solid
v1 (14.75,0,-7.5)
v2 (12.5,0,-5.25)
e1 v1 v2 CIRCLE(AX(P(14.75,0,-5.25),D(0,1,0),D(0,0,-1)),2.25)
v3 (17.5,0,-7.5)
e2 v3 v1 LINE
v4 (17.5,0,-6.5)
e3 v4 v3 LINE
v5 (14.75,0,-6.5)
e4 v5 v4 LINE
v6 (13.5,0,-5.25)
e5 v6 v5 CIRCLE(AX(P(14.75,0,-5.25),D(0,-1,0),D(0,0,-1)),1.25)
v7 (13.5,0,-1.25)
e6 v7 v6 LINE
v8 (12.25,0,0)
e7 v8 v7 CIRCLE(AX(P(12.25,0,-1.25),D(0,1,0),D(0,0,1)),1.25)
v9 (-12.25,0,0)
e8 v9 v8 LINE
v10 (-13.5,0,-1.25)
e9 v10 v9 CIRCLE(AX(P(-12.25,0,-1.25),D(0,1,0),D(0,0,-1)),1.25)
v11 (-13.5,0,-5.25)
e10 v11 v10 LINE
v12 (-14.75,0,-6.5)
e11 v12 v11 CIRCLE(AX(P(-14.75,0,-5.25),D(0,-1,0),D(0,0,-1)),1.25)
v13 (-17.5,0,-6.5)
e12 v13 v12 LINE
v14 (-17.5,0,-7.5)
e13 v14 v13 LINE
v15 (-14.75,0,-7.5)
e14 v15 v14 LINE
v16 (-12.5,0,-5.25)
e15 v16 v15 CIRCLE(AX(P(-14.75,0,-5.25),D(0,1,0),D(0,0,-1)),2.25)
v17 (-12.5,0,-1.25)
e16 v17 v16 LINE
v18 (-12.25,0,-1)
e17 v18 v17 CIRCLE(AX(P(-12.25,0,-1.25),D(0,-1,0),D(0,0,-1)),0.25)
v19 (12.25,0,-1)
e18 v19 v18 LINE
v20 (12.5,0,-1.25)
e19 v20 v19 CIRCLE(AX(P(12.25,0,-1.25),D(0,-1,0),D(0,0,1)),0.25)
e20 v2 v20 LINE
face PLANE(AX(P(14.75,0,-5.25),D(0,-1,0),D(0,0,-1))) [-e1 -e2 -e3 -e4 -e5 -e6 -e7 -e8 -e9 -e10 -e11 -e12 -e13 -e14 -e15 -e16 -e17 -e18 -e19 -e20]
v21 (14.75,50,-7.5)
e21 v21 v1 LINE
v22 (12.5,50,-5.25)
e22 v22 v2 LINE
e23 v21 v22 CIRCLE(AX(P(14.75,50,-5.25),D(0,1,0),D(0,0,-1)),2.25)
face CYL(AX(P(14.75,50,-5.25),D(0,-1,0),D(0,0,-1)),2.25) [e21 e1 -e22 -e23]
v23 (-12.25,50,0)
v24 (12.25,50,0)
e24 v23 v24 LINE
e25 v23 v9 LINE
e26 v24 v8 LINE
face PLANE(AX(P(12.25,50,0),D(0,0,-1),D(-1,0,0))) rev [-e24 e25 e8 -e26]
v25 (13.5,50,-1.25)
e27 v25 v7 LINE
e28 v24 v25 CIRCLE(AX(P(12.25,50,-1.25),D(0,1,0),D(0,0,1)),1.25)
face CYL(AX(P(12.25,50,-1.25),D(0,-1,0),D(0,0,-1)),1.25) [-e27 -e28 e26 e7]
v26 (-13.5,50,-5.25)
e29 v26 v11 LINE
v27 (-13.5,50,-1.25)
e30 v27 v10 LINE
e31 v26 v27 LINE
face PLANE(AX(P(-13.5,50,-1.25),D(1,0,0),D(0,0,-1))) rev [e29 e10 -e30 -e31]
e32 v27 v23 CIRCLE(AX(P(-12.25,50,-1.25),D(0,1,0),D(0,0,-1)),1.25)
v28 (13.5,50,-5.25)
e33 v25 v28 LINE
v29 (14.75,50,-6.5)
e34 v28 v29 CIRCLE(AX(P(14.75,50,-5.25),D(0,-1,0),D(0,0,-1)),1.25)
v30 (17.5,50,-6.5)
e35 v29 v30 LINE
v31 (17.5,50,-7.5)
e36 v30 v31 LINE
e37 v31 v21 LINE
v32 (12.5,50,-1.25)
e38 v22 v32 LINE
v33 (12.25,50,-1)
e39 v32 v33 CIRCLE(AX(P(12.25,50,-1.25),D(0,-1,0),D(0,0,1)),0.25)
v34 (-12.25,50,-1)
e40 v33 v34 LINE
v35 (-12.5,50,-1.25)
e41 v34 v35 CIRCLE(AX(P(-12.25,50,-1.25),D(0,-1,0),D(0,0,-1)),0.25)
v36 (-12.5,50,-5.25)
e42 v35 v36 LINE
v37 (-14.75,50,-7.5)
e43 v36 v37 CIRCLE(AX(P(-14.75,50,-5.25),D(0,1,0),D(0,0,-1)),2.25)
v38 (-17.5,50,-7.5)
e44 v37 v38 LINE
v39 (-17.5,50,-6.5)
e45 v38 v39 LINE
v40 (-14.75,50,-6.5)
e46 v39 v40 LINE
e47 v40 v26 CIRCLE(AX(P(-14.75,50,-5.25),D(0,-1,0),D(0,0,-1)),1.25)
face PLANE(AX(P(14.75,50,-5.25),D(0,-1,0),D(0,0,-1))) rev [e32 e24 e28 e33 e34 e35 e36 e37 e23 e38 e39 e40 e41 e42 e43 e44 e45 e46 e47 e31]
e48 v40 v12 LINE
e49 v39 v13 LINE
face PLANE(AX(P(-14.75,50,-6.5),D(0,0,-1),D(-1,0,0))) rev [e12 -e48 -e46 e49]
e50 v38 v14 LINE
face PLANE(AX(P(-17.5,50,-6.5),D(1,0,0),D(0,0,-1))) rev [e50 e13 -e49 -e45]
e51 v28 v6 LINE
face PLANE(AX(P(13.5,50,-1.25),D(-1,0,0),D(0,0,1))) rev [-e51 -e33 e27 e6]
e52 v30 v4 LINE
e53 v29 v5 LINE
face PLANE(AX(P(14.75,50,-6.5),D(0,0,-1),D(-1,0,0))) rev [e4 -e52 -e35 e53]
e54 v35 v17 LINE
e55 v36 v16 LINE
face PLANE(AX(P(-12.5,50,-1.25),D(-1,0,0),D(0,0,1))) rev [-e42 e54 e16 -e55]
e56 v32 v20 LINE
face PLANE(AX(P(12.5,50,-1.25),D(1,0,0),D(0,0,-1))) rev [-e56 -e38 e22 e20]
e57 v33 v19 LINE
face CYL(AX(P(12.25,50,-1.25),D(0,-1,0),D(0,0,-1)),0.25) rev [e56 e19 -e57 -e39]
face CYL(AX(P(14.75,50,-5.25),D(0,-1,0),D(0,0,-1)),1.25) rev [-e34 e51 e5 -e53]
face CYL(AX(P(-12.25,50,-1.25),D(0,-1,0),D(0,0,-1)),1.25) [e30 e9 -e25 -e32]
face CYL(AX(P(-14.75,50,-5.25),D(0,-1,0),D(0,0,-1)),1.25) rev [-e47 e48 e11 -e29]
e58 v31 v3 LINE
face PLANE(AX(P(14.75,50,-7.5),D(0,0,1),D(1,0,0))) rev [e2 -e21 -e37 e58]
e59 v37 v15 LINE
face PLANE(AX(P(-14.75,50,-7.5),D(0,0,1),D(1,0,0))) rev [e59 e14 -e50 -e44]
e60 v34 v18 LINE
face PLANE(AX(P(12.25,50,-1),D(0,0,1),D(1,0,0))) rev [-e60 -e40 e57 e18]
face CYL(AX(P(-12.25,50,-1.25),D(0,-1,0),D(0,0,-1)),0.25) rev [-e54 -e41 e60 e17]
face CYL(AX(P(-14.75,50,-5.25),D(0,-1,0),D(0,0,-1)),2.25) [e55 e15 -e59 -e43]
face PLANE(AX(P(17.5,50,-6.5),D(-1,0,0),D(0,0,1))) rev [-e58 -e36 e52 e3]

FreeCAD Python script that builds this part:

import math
import FreeCAD as App
import Part
import Sketcher
from FreeCAD import Vector

doc = App.newDocument("Part")
params = doc.addObject("Spreadsheet::Sheet", "Params")
for row, (alias, value) in enumerate([
    ("sketch1_height", "4 mm"),
    ("sketch1_height2", "1 mm"),
    ("sketch1_radius", "1.25 mm"),
    ("sketch1_width", "24.5 mm"),
    ("pad1_length", "50 mm"),
], start=1):
    params.set(f"A{row}", alias)
    params.set(f"B{row}", "=" + value)
    params.setAlias(f"B{row}", alias)

body = doc.addObject("PartDesign::Body", "Body")

# Sketch on XZ plane
sketch1 = doc.addObject("Sketcher::SketchObject", "Sketch")
body.addObject(sketch1)
sketch1.AttachmentSupport = (doc.XZ_Plane, [""])
sketch1.MapMode = "FlatFace"
sketch1.addGeometry([
    Part.LineSegment(Vector(-12.25, 0, 0), Vector(12.25, 0, 0)),  # 0
    Part.ArcOfCircle(Part.Circle(Vector(12.25, -1.25, 0), Vector(0, 0, 1), 1.25), math.radians(0), math.radians(90)),  # 1
    Part.LineSegment(Vector(13.5, -1.25, 0), Vector(13.5, -5.25, 0)),  # 2
    Part.ArcOfCircle(Part.Circle(Vector(14.75, -5.25, 0), Vector(0, 0, 1), 1.25), math.radians(-180), math.radians(-90)),  # 3
    Part.LineSegment(Vector(14.75, -6.5, 0), Vector(17.5, -6.5, 0)),  # 4
    Part.LineSegment(Vector(17.5, -6.5, 0), Vector(17.5, -7.5, 0)),  # 5
    Part.LineSegment(Vector(17.5, -7.5, 0), Vector(14.75, -7.5, 0)),  # 6
    Part.ArcOfCircle(Part.Circle(Vector(14.75, -5.25, 0), Vector(0, 0, 1), 2.25), math.radians(180), math.radians(270)),  # 7
    Part.LineSegment(Vector(12.5, -5.25, 0), Vector(12.5, -1.25, 0)),  # 8
    Part.ArcOfCircle(Part.Circle(Vector(12.25, -1.25, 0), Vector(0, 0, 1), 0.25), math.radians(0), math.radians(90)),  # 9
    Part.LineSegment(Vector(12.25, -1, 0), Vector(-12.25, -1, 0)),  # 10
    Part.ArcOfCircle(Part.Circle(Vector(-12.25, -1.25, 0), Vector(0, 0, 1), 0.25), math.radians(90), math.radians(180)),  # 11
    Part.LineSegment(Vector(-12.5, -1.25, 0), Vector(-12.5, -5.25, 0)),  # 12
    Part.ArcOfCircle(Part.Circle(Vector(-14.75, -5.25, 0), Vector(0, 0, 1), 2.25), math.radians(-90), math.radians(0)),  # 13
    Part.LineSegment(Vector(-14.75, -7.5, 0), Vector(-17.5, -7.5, 0)),  # 14
    Part.LineSegment(Vector(-17.5, -7.5, 0), Vector(-17.5, -6.5, 0)),  # 15
    Part.LineSegment(Vector(-17.5, -6.5, 0), Vector(-14.75, -6.5, 0)),  # 16
    Part.ArcOfCircle(Part.Circle(Vector(-14.75, -5.25, 0), Vector(0, 0, 1), 1.25), math.radians(-90), math.radians(0)),  # 17
    Part.LineSegment(Vector(-13.5, -5.25, 0), Vector(-13.5, -1.25, 0)),  # 18
    Part.ArcOfCircle(Part.Circle(Vector(-12.25, -1.25, 0), Vector(0, 0, 1), 1.25), math.radians(90), math.radians(180)),  # 19
], False)
sketch1.addConstraint([
    Sketcher.Constraint("Tangent", 0, 2, 1, 2),
    Sketcher.Constraint("Tangent", 1, 1, 2, 1),
    Sketcher.Constraint("Tangent", 2, 2, 3, 1),
    Sketcher.Constraint("Tangent", 3, 2, 4, 1),
    Sketcher.Constraint("Coincident", 4, 2, 5, 1),
    Sketcher.Constraint("Coincident", 5, 2, 6, 1),
    Sketcher.Constraint("Tangent", 6, 2, 7, 2),
    Sketcher.Constraint("Tangent", 7, 1, 8, 1),
    Sketcher.Constraint("Tangent", 8, 2, 9, 1),
    Sketcher.Constraint("Tangent", 9, 2, 10, 1),
    Sketcher.Constraint("Tangent", 10, 2, 11, 1),
    Sketcher.Constraint("Tangent", 11, 2, 12, 1),
    Sketcher.Constraint("Tangent", 12, 2, 13, 2),
    Sketcher.Constraint("Tangent", 13, 1, 14, 1),
    Sketcher.Constraint("Coincident", 14, 2, 15, 1),
    Sketcher.Constraint("Coincident", 15, 2, 16, 1),
    Sketcher.Constraint("Tangent", 16, 2, 17, 1),
    Sketcher.Constraint("Tangent", 17, 2, 18, 1),
    Sketcher.Constraint("Tangent", 18, 2, 19, 2),
    Sketcher.Constraint("Tangent", 19, 1, 0, 1),
    Sketcher.Constraint("Horizontal", 0),
    Sketcher.Constraint("Vertical", 2),
    Sketcher.Constraint("Horizontal", 4),
    Sketcher.Constraint("Vertical", 5),
    Sketcher.Constraint("Horizontal", 6),
    Sketcher.Constraint("Vertical", 8),
    Sketcher.Constraint("Horizontal", 10),
    Sketcher.Constraint("Vertical", 12),
    Sketcher.Constraint("Horizontal", 14),
    Sketcher.Constraint("Vertical", 15),
    Sketcher.Constraint("Horizontal", 16),
    Sketcher.Constraint("Vertical", 18),
    Sketcher.Constraint("Coincident", 7, 3, 3, 3),
    Sketcher.Constraint("Coincident", 9, 3, 1, 3),
    Sketcher.Constraint("Coincident", 17, 3, 13, 3),
    Sketcher.Constraint("Coincident", 19, 3, 11, 3),
    Sketcher.Constraint("Equal", 1, 3),
    Sketcher.Constraint("Equal", 9, 11),
    Sketcher.Constraint("Equal", 7, 13),
    Sketcher.Constraint("Symmetric", 0, 2, 19, 1, -1, 1),
    Sketcher.Constraint("Symmetric", 5, 2, 14, 2, -2),
    Sketcher.Constraint("DistanceY", 2, 2, 2, 1, 4.0),
    Sketcher.Constraint("DistanceY", 5, 2, 5, 1, 1.0),
    Sketcher.Constraint("Radius", 1, 1.25),
    Sketcher.Constraint("DistanceX", 0, 1, 0, 2, 24.5),
    Sketcher.Constraint("DistanceX", 2, 2, 4, 2, 4.0),
])
sketch1.setExpression("Constraints[41]", "Params.sketch1_height")
sketch1.setExpression("Constraints[42]", "Params.sketch1_height2")
sketch1.setExpression("Constraints[43]", "Params.sketch1_radius")
sketch1.setExpression("Constraints[44]", "Params.sketch1_width")
pad1 = doc.addObject("PartDesign::Pad", "Pad")
body.addObject(pad1)
pad1.Profile = sketch1
pad1.setExpression("Length", "Params.pad1_length")
pad1.Reversed = True

doc.recompute()
